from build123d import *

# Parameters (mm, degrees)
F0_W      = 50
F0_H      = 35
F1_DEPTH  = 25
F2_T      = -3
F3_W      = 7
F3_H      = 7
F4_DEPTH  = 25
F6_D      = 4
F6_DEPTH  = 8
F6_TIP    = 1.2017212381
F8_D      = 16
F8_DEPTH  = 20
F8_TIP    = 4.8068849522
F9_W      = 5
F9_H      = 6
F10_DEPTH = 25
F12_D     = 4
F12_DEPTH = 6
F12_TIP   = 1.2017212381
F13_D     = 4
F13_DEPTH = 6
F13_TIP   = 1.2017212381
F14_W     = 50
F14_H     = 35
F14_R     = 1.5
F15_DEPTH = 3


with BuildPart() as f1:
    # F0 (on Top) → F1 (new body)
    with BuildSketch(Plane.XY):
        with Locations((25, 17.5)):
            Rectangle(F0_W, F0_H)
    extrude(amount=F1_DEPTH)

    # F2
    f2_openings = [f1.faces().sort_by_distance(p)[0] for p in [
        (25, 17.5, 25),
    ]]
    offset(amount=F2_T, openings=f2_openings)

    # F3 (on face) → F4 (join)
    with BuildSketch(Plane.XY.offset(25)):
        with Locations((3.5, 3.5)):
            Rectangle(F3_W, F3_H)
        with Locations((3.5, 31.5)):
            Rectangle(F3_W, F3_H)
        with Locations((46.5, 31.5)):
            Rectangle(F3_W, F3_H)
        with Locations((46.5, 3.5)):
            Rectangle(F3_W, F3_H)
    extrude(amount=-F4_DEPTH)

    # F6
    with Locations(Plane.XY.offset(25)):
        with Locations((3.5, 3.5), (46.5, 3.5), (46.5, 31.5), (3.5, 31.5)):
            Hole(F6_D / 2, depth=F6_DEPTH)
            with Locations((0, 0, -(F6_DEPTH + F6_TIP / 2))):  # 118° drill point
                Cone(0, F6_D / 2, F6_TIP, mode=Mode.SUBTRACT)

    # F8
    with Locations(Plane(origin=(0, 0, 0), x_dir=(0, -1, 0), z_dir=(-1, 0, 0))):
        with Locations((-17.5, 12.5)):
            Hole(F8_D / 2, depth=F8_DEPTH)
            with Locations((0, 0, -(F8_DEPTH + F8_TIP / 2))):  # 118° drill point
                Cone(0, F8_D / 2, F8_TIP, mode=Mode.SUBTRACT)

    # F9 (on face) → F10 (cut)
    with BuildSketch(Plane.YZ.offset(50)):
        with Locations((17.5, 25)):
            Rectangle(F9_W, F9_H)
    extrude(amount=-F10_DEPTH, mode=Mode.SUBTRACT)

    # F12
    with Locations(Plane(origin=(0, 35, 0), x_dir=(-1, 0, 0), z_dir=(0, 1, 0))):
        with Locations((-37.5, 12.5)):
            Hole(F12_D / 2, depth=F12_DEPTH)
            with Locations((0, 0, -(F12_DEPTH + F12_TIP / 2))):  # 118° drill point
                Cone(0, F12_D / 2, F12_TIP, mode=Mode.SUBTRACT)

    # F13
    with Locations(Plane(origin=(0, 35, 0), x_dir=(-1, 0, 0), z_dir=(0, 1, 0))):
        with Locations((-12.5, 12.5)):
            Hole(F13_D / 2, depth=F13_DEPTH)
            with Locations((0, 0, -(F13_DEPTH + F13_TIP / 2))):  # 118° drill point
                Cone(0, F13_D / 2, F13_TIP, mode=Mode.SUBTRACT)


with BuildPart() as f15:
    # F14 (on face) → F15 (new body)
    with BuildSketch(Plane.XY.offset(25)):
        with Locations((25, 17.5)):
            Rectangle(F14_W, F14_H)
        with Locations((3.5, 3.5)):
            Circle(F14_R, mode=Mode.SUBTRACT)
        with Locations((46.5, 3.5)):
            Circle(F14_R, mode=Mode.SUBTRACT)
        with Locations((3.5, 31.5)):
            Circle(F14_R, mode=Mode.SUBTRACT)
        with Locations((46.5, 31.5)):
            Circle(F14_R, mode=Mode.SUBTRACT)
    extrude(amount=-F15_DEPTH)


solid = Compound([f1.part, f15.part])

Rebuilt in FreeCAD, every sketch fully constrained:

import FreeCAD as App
import Part
import Sketcher

V = App.Vector


def faces_at(feature, points):
    """Names of the faces that lie closest to the given points."""
    faces = feature.Shape.Faces
    near = lambda p: min(range(len(faces)), key=lambda i: faces[i].distToShape(Part.Vertex(*p))[0])
    return sorted({f"Face{near(p) + 1}" for p in points})

doc = App.newDocument("Part")
body = doc.addObject("PartDesign::Body", "Body")

sketch1 = body.newObject("Sketcher::SketchObject", "Sketch")
sketch1.AttachmentSupport = (doc.getObject("XY_Plane"), [""])
sketch1.MapMode = "FlatFace"
sketch1.addGeometry([
    Part.LineSegment(V(0, 35, 0), V(0, 0, 0)),
    Part.LineSegment(V(0, 0, 0), V(50, 0, 0)),
    Part.LineSegment(V(50, 0, 0), V(50, 35, 0)),
    Part.LineSegment(V(50, 35, 0), V(0, 35, 0)),
], False)
sketch1.addConstraint([
    Sketcher.Constraint("Coincident", 0, 2, 1, 1),
    Sketcher.Constraint("Coincident", 1, 2, 2, 1),
    Sketcher.Constraint("Coincident", 2, 2, 3, 1),
    Sketcher.Constraint("Coincident", 3, 2, 0, 1),
    Sketcher.Constraint("Vertical", 0),
    Sketcher.Constraint("Horizontal", 1),
    Sketcher.Constraint("Vertical", 2),
    Sketcher.Constraint("Horizontal", 3),
    Sketcher.Constraint("Coincident", 0, 2, -1, 1),
    Sketcher.Constraint("DistanceX", 1, 1, 1, 2, 50.0),
    Sketcher.Constraint("DistanceY", 0, 2, 0, 1, 35.0),
])
pad1 = body.newObject("PartDesign::Pad", "Pad")
pad1.Profile = sketch1
pad1.Length = 25
doc.recompute()

thickness = body.newObject("PartDesign::Thickness", "Thickness")
thickness.Base = (pad1, faces_at(pad1, [(25, 17.5, 25)]))
thickness.Value = 3
thickness.Reversed = True
thickness.Join = "Arc"

sketch2 = body.newObject("Sketcher::SketchObject", "Sketch001")
sketch2.AttachmentSupport = (doc.getObject("XY_Plane"), [""])
sketch2.MapMode = "FlatFace"
sketch2.AttachmentOffset = App.Placement(V(0, 0, 25), App.Rotation())
sketch2.addGeometry([
    Part.LineSegment(V(0, 7, 0), V(0, 0, 0)),
    Part.LineSegment(V(0, 0, 0), V(7, 0, 0)),
    Part.LineSegment(V(7, 0, 0), V(7, 7, 0)),
    Part.LineSegment(V(7, 7, 0), V(0, 7, 0)),
    Part.LineSegment(V(0, 35, 0), V(0, 28, 0)),
    Part.LineSegment(V(0, 28, 0), V(7, 28, 0)),
    Part.LineSegment(V(7, 28, 0), V(7, 35, 0)),
    Part.LineSegment(V(7, 35, 0), V(0, 35, 0)),
    Part.LineSegment(V(43, 35, 0), V(43, 28, 0)),
    Part.LineSegment(V(43, 28, 0), V(50, 28, 0)),
    Part.LineSegment(V(50, 28, 0), V(50, 35, 0)),
    Part.LineSegment(V(50, 35, 0), V(43, 35, 0)),
    Part.LineSegment(V(43, 7, 0), V(43, 0, 0)),
    Part.LineSegment(V(43, 0, 0), V(50, 0, 0)),
    Part.LineSegment(V(50, 0, 0), V(50, 7, 0)),
    Part.LineSegment(V(50, 7, 0), V(43, 7, 0)),
], False)
sketch2.addConstraint([
    Sketcher.Constraint("Coincident", 0, 2, 1, 1),
    Sketcher.Constraint("Coincident", 1, 2, 2, 1),
    Sketcher.Constraint("Coincident", 2, 2, 3, 1),
    Sketcher.Constraint("Coincident", 3, 2, 0, 1),
    Sketcher.Constraint("Coincident", 4, 2, 5, 1),
    Sketcher.Constraint("Coincident", 5, 2, 6, 1),
    Sketcher.Constraint("Coincident", 6, 2, 7, 1),
    Sketcher.Constraint("Coincident", 7, 2, 4, 1),
    Sketcher.Constraint("Coincident", 8, 2, 9, 1),
    Sketcher.Constraint("Coincident", 9, 2, 10, 1),
    Sketcher.Constraint("Coincident", 10, 2, 11, 1),
    Sketcher.Constraint("Coincident", 11, 2, 8, 1),
    Sketcher.Constraint("Coincident", 12, 2, 13, 1),
    Sketcher.Constraint("Coincident", 13, 2, 14, 1),
    Sketcher.Constraint("Coincident", 14, 2, 15, 1),
    Sketcher.Constraint("Coincident", 15, 2, 12, 1),
    Sketcher.Constraint("Vertical", 0),
    Sketcher.Constraint("Horizontal", 1),
    Sketcher.Constraint("Vertical", 2),
    Sketcher.Constraint("Horizontal", 3),
    Sketcher.Constraint("Vertical", 4),
    Sketcher.Constraint("Horizontal", 5),
    Sketcher.Constraint("Vertical", 6),
    Sketcher.Constraint("Horizontal", 7),
    Sketcher.Constraint("Vertical", 8),
    Sketcher.Constraint("Horizontal", 9),
    Sketcher.Constraint("Vertical", 10),
    Sketcher.Constraint("Horizontal", 11),
    Sketcher.Constraint("Vertical", 12),
    Sketcher.Constraint("Horizontal", 13),
    Sketcher.Constraint("Vertical", 14),
    Sketcher.Constraint("Horizontal", 15),
    Sketcher.Constraint("Coincident", 0, 2, -1, 1),
    Sketcher.Constraint("PointOnObject", 4, 2, -2),
    Sketcher.Constraint("PointOnObject", 12, 2, -1),
    Sketcher.Constraint("Horizontal", 5, 2, 8, 2),
    Sketcher.Constraint("Horizontal", 7, 2, 10, 2),
    Sketcher.Constraint("Horizontal", 3, 2, 14, 2),
    Sketcher.Constraint("Vertical", 2, 2, 5, 2),
    Sketcher.Constraint("Vertical", 11, 2, 12, 2),
    Sketcher.Constraint("Vertical", 10, 2, 13, 2),
    Sketcher.Constraint("Equal", 7, 9),
    Sketcher.Constraint("Equal", 15, 0),
    Sketcher.Constraint("Equal", 2, 4),
    Sketcher.Constraint("DistanceX", 1, 1, 1, 2, 7.0),
    Sketcher.Constraint("DistanceY", -1, 1, 4, 2, 28.0),
    Sketcher.Constraint("DistanceX", -1, 1, 8, 2, 43.0),
])
pad2 = body.newObject("PartDesign::Pad", "Pad001")
pad2.Profile = sketch2
pad2.Length = 25
pad2.Reversed = True

sketch3 = body.newObject("Sketcher::SketchObject", "Sketch002")
sketch3.AttachmentSupport = (doc.getObject("XY_Plane"), [""])
sketch3.MapMode = "FlatFace"
sketch3.AttachmentOffset = App.Placement(V(0, 0, 25), App.Rotation())
sketch3.addGeometry([
    Part.Circle(V(3.5, 3.5, 0), V(0, 0, 1), 2),
    Part.Circle(V(46.5, 3.5, 0), V(0, 0, 1), 2),
    Part.Circle(V(46.5, 31.5, 0), V(0, 0, 1), 2),
    Part.Circle(V(3.5, 31.5, 0), V(0, 0, 1), 2),
], False)
sketch3.addConstraint([
    Sketcher.Constraint("Equal", 0, 1),
    Sketcher.Constraint("Equal", 1, 2),
    Sketcher.Constraint("Equal", 2, 3),
    Sketcher.Constraint("Horizontal", 0, 3, 1, 3),
    Sketcher.Constraint("Horizontal", 2, 3, 3, 3),
    Sketcher.Constraint("Vertical", 1, 3, 2, 3),
    Sketcher.Constraint("Vertical", 0, 3, 3, 3),
    Sketcher.Constraint("Diameter", 0, 4.0),
    Sketcher.Constraint("DistanceX", 0, 3, 1, 3, 43.0),
    Sketcher.Constraint("DistanceY", 1, 3, 2, 3, 28.0),
    Sketcher.Constraint("DistanceX", -1, 1, 0, 3, 3.5),
    Sketcher.Constraint("DistanceY", -1, 1, 0, 3, 3.5),
])
doc.recompute()
hole = body.newObject("PartDesign::Hole", "Hole")
hole.Profile = sketch3
hole.ThreadType = "None"
hole.Diameter = 4
hole.DepthType = "Dimension"
hole.Depth = 8
hole.DrillPoint = "Angled"
hole.DrillPointAngle = 118

sketch4 = body.newObject("Sketcher::SketchObject", "Sketch003")
sketch4.AttachmentSupport = (doc.getObject("YZ_Plane"), [""])
sketch4.MapMode = "FlatFace"
sketch4.addGeometry(Part.Circle(V(18, 12, 0), V(0, 0, 1), 8), False)
sketch4.addConstraint([
    Sketcher.Constraint("Diameter", 0, 16.0),
    Sketcher.Constraint("DistanceX", -1, 1, 0, 3, 17.5),
    Sketcher.Constraint("DistanceY", -1, 1, 0, 3, 12.5),
])
doc.recompute()
hole2 = body.newObject("PartDesign::Hole", "Hole001")
hole2.Profile = sketch4
hole2.ThreadType = "None"
hole2.Diameter = 16
hole2.DepthType = "Dimension"
hole2.Depth = 20
hole2.DrillPoint = "Angled"
hole2.DrillPointAngle = 118
hole2.Reversed = True

sketch5 = body.newObject("Sketcher::SketchObject", "Sketch004")
sketch5.AttachmentSupport = (doc.getObject("YZ_Plane"), [""])
sketch5.MapMode = "FlatFace"
sketch5.AttachmentOffset = App.Placement(V(0, 0, 50), App.Rotation())
sketch5.addGeometry([
    Part.LineSegment(V(15, 28, 0), V(15, 22, 0)),
    Part.LineSegment(V(15, 22, 0), V(20, 22, 0)),
    Part.LineSegment(V(20, 22, 0), V(20, 28, 0)),
    Part.LineSegment(V(20, 28, 0), V(15, 28, 0)),
], False)
sketch5.addConstraint([
    Sketcher.Constraint("Coincident", 0, 2, 1, 1),
    Sketcher.Constraint("Coincident", 1, 2, 2, 1),
    Sketcher.Constraint("Coincident", 2, 2, 3, 1),
    Sketcher.Constraint("Coincident", 3, 2, 0, 1),
    Sketcher.Constraint("Vertical", 0),
    Sketcher.Constraint("Horizontal", 1),
    Sketcher.Constraint("Vertical", 2),
    Sketcher.Constraint("Horizontal", 3),
    Sketcher.Constraint("DistanceX", 1, 1, 1, 2, 5.0),
    Sketcher.Constraint("DistanceY", 0, 2, 0, 1, 6.0),
    Sketcher.Constraint("DistanceX", -1, 1, 0, 2, 15.0),
    Sketcher.Constraint("DistanceY", -1, 1, 0, 2, 22.0),
])
pocket1 = body.newObject("PartDesign::Pocket", "Pocket")
pocket1.Profile = sketch5
pocket1.Length = 25

sketch6 = body.newObject("Sketcher::SketchObject", "Sketch005")
sketch6.AttachmentSupport = (doc.getObject("XZ_Plane"), [""])
sketch6.MapMode = "FlatFace"
sketch6.AttachmentOffset = App.Placement(V(0, 0, -35), App.Rotation())
sketch6.addGeometry(Part.Circle(V(37.5, 12.5, 0), V(0, 0, 1), 2), False)
sketch6.addConstraint([
    Sketcher.Constraint("Diameter", 0, 4.0),
    Sketcher.Constraint("DistanceX", -1, 1, 0, 3, 37.5),
    Sketcher.Constraint("DistanceY", -1, 1, 0, 3, 12.5),
])
doc.recompute()
hole3 = body.newObject("PartDesign::Hole", "Hole002")
hole3.Profile = sketch6
hole3.ThreadType = "None"
hole3.Diameter = 4
hole3.DepthType = "Dimension"
hole3.Depth = 6
hole3.DrillPoint = "Angled"
hole3.DrillPointAngle = 118
hole3.Reversed = True

sketch7 = body.newObject("Sketcher::SketchObject", "Sketch006")
sketch7.AttachmentSupport = (doc.getObject("XZ_Plane"), [""])
sketch7.MapMode = "FlatFace"
sketch7.AttachmentOffset = App.Placement(V(0, 0, -35), App.Rotation())
sketch7.addGeometry(Part.Circle(V(12.5, 12.5, 0), V(0, 0, 1), 2), False)
sketch7.addConstraint([
    Sketcher.Constraint("Diameter", 0, 4.0),
    Sketcher.Constraint("DistanceX", -1, 1, 0, 3, 12.5),
    Sketcher.Constraint("DistanceY", -1, 1, 0, 3, 12.5),
])
doc.recompute()
hole4 = body.newObject("PartDesign::Hole", "Hole003")
hole4.Profile = sketch7
hole4.ThreadType = "None"
hole4.Diameter = 4
hole4.DepthType = "Dimension"
hole4.Depth = 6
hole4.DrillPoint = "Angled"
hole4.DrillPointAngle = 118
hole4.Reversed = True
body2 = doc.addObject("PartDesign::Body", "Body001")

sketch8 = body2.newObject("Sketcher::SketchObject", "Sketch007")
sketch8.AttachmentSupport = (doc.getObject("XY_Plane001"), [""])
sketch8.MapMode = "FlatFace"
sketch8.AttachmentOffset = App.Placement(V(0, 0, 25), App.Rotation())
sketch8.addGeometry([
    Part.LineSegment(V(0, 35, 0), V(0, 0, 0)),
    Part.LineSegment(V(0, 0, 0), V(50, 0, 0)),
    Part.LineSegment(V(50, 0, 0), V(50, 35, 0)),
    Part.LineSegment(V(50, 35, 0), V(0, 35, 0)),
    Part.Circle(V(3.5, 3.5, 0), V(0, 0, 1), 1.5),
    Part.Circle(V(46.5, 3.5, 0), V(0, 0, 1), 1.5),
    Part.Circle(V(3.5, 31.5, 0), V(0, 0, 1), 1.5),
    Part.Circle(V(46.5, 31.5, 0), V(0, 0, 1), 1.5),
], False)
sketch8.addConstraint([
    Sketcher.Constraint("Coincident", 0, 2, 1, 1),
    Sketcher.Constraint("Coincident", 1, 2, 2, 1),
    Sketcher.Constraint("Coincident", 2, 2, 3, 1),
    Sketcher.Constraint("Coincident", 3, 2, 0, 1),
    Sketcher.Constraint("Vertical", 0),
    Sketcher.Constraint("Horizontal", 1),
    Sketcher.Constraint("Vertical", 2),
    Sketcher.Constraint("Horizontal", 3),
    Sketcher.Constraint("Coincident", 0, 2, -1, 1),
    Sketcher.Constraint("Equal", 4, 5),
    Sketcher.Constraint("Equal", 5, 6),
    Sketcher.Constraint("Equal", 6, 7),
    Sketcher.Constraint("Horizontal", 4, 3, 5, 3),
    Sketcher.Constraint("Horizontal", 6, 3, 7, 3),
    Sketcher.Constraint("Vertical", 4, 3, 6, 3),
    Sketcher.Constraint("Vertical", 5, 3, 7, 3),
    Sketcher.Constraint("Diameter", 4, 3.0),
    Sketcher.Constraint("DistanceX", 1, 1, 1, 2, 50.0),
    Sketcher.Constraint("DistanceY", 0, 2, 0, 1, 35.0),
    Sketcher.Constraint("DistanceX", 4, 3, 5, 3, 43.0),
    Sketcher.Constraint("DistanceY", 4, 3, 6, 3, 28.0),
    Sketcher.Constraint("DistanceX", -1, 1, 4, 3, 3.5),
    Sketcher.Constraint("DistanceY", -1, 1, 4, 3, 3.5),
])
pad3 = body2.newObject("PartDesign::Pad", "Pad002")
pad3.Profile = sketch8
pad3.Length = 3
pad3.Reversed = True

doc.recompute()
